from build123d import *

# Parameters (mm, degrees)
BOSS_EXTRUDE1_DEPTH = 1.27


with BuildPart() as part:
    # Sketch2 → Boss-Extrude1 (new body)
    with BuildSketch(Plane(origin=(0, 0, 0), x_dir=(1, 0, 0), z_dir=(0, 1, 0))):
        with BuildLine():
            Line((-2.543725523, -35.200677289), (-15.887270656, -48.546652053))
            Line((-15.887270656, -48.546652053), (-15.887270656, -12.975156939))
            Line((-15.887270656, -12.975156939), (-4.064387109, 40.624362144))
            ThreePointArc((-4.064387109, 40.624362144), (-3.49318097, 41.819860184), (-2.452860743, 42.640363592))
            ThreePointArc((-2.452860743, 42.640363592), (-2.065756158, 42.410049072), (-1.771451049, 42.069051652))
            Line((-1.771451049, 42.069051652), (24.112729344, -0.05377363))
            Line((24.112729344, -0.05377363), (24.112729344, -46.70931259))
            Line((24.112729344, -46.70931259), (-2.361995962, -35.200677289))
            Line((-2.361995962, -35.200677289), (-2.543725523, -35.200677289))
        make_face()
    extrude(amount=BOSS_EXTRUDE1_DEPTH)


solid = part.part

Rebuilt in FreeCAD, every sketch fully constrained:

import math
import FreeCAD as App
import Part
import Sketcher

V = App.Vector
Q = App.Units.Quantity

doc = App.newDocument("Part")
body = doc.addObject("PartDesign::Body", "Body")

# Sketch on XZ plane
sketch1 = body.newObject("Sketcher::SketchObject", "Sketch")
sketch1.AttachmentSupport = (doc.getObject("XZ_Plane"), [""])
sketch1.MapMode = "FlatFace"
sketch1.addGeometry(Part.LineSegment(V(-15.887271, 48.546652, 0), V(-2.543726, 35.200677, 0)), False)
sketch1.addGeometry(Part.LineSegment(V(-2.543726, 35.200677, 0), V(-2.361996, 35.200677, 0)), False)
sketch1.addGeometry(Part.LineSegment(V(-2.361996, 35.200677, 0), V(24.112729, 46.709313, 0)), False)
sketch1.addGeometry(Part.LineSegment(V(24.112729, 46.709313, 0), V(24.112729, 0.053774, 0)), False)
sketch1.addGeometry(Part.LineSegment(V(24.112729, 0.053774, 0), V(-1.771451, -42.069052, 0)), False)
sketch1.addGeometry(Part.ArcOfCircle(Part.Circle(V(-2.968264, -41.333618, 0), V(0, 0, 1), 1.404715), math.radians(-68.474847), math.radians(-31.570433)), False)
sketch1.addGeometry(Part.ArcOfCircle(Part.Circle(V(-1.209978, -39.994742, 0), V(0, 0, 1), 2.923024), math.radians(-167.560988), math.radians(-115.163592)), False)
sketch1.addGeometry(Part.LineSegment(V(-4.064387, -40.624362, 0), V(-15.887271, 12.975157, 0)), False)
sketch1.addGeometry(Part.LineSegment(V(-15.887271, 12.975157, 0), V(-15.887271, 48.546652, 0)), False)
sketch1.addConstraint(Sketcher.Constraint("Coincident", 0, 2, 1, 1))
sketch1.addConstraint(Sketcher.Constraint("Coincident", 1, 2, 2, 1))
sketch1.addConstraint(Sketcher.Constraint("Coincident", 2, 2, 3, 1))
sketch1.addConstraint(Sketcher.Constraint("Coincident", 3, 2, 4, 1))
sketch1.addConstraint(Sketcher.Constraint("Coincident", 4, 2, 5, 2))
sketch1.addConstraint(Sketcher.Constraint("Coincident", 5, 1, 6, 2))
sketch1.addConstraint(Sketcher.Constraint("Coincident", 6, 1, 7, 1))
sketch1.addConstraint(Sketcher.Constraint("Coincident", 7, 2, 8, 1))
sketch1.addConstraint(Sketcher.Constraint("Coincident", 8, 2, 0, 1))
sketch1.addConstraint(Sketcher.Constraint("Horizontal", 1))
sketch1.addConstraint(Sketcher.Constraint("Vertical", 3))
sketch1.addConstraint(Sketcher.Constraint("Vertical", 8))
sketch1.addConstraint(Sketcher.Constraint("Radius", 5, Q("1.404715 mm")))
sketch1.addConstraint(Sketcher.Constraint("Radius", 6, Q("2.923024 mm")))
sketch1.addConstraint(Sketcher.Constraint("DistanceX", 1, 1, 1, 2, Q("0.18173 mm")))
sketch1.addConstraint(Sketcher.Constraint("DistanceY", 3, 2, 3, 1, Q("46.655539 mm")))
sketch1.addConstraint(Sketcher.Constraint("DistanceY", 5, 1, 6, 1, Q("2.016001 mm")))
sketch1.addConstraint(Sketcher.Constraint("DistanceX", 7, 2, 3, 2, Q("40 mm")))
sketch1.addConstraint(Sketcher.Constraint("Distance", 0, Q("18.872341 mm")))
sketch1.addConstraint(Sketcher.Constraint("Distance", 2, Q("28.867971 mm")))
sketch1.addConstraint(Sketcher.Constraint("DistanceY", 8, 1, 8, 2, Q("35.571495 mm")))
sketch1.addConstraint(Sketcher.Constraint("DistanceY", 5, 3, -1, 1, Q("41.333618 mm")))
sketch1.addConstraint(Sketcher.Constraint("DistanceX", 6, 3, -1, 1, Q("1.209978 mm")))
sketch1.addConstraint(Sketcher.Constraint("DistanceY", 6, 3, -1, 1, Q("39.994742 mm")))
sketch1.addConstraint(Sketcher.Constraint("DistanceX", -1, 1, 2, 2, Q("24.112729 mm")))
sketch1.addConstraint(Sketcher.Constraint("DistanceX", 4, 2, -1, 1, Q("1.771451 mm")))
sketch1.addConstraint(Sketcher.Constraint("DistanceY", 4, 2, -1, 1, Q("42.069052 mm")))
sketch1.addConstraint(Sketcher.Constraint("DistanceY", 6, 3, 0, 2, Q("75.195419 mm")))
sketch1.addConstraint(Sketcher.Constraint("DistanceX", 5, 3, 0, 2, Q("0.424539 mm")))
pad1 = body.newObject("PartDesign::Pad", "Pad")
pad1.Profile = sketch1
pad1.Length = Q("0.05 in")
pad1.Reversed = True

doc.recompute()
